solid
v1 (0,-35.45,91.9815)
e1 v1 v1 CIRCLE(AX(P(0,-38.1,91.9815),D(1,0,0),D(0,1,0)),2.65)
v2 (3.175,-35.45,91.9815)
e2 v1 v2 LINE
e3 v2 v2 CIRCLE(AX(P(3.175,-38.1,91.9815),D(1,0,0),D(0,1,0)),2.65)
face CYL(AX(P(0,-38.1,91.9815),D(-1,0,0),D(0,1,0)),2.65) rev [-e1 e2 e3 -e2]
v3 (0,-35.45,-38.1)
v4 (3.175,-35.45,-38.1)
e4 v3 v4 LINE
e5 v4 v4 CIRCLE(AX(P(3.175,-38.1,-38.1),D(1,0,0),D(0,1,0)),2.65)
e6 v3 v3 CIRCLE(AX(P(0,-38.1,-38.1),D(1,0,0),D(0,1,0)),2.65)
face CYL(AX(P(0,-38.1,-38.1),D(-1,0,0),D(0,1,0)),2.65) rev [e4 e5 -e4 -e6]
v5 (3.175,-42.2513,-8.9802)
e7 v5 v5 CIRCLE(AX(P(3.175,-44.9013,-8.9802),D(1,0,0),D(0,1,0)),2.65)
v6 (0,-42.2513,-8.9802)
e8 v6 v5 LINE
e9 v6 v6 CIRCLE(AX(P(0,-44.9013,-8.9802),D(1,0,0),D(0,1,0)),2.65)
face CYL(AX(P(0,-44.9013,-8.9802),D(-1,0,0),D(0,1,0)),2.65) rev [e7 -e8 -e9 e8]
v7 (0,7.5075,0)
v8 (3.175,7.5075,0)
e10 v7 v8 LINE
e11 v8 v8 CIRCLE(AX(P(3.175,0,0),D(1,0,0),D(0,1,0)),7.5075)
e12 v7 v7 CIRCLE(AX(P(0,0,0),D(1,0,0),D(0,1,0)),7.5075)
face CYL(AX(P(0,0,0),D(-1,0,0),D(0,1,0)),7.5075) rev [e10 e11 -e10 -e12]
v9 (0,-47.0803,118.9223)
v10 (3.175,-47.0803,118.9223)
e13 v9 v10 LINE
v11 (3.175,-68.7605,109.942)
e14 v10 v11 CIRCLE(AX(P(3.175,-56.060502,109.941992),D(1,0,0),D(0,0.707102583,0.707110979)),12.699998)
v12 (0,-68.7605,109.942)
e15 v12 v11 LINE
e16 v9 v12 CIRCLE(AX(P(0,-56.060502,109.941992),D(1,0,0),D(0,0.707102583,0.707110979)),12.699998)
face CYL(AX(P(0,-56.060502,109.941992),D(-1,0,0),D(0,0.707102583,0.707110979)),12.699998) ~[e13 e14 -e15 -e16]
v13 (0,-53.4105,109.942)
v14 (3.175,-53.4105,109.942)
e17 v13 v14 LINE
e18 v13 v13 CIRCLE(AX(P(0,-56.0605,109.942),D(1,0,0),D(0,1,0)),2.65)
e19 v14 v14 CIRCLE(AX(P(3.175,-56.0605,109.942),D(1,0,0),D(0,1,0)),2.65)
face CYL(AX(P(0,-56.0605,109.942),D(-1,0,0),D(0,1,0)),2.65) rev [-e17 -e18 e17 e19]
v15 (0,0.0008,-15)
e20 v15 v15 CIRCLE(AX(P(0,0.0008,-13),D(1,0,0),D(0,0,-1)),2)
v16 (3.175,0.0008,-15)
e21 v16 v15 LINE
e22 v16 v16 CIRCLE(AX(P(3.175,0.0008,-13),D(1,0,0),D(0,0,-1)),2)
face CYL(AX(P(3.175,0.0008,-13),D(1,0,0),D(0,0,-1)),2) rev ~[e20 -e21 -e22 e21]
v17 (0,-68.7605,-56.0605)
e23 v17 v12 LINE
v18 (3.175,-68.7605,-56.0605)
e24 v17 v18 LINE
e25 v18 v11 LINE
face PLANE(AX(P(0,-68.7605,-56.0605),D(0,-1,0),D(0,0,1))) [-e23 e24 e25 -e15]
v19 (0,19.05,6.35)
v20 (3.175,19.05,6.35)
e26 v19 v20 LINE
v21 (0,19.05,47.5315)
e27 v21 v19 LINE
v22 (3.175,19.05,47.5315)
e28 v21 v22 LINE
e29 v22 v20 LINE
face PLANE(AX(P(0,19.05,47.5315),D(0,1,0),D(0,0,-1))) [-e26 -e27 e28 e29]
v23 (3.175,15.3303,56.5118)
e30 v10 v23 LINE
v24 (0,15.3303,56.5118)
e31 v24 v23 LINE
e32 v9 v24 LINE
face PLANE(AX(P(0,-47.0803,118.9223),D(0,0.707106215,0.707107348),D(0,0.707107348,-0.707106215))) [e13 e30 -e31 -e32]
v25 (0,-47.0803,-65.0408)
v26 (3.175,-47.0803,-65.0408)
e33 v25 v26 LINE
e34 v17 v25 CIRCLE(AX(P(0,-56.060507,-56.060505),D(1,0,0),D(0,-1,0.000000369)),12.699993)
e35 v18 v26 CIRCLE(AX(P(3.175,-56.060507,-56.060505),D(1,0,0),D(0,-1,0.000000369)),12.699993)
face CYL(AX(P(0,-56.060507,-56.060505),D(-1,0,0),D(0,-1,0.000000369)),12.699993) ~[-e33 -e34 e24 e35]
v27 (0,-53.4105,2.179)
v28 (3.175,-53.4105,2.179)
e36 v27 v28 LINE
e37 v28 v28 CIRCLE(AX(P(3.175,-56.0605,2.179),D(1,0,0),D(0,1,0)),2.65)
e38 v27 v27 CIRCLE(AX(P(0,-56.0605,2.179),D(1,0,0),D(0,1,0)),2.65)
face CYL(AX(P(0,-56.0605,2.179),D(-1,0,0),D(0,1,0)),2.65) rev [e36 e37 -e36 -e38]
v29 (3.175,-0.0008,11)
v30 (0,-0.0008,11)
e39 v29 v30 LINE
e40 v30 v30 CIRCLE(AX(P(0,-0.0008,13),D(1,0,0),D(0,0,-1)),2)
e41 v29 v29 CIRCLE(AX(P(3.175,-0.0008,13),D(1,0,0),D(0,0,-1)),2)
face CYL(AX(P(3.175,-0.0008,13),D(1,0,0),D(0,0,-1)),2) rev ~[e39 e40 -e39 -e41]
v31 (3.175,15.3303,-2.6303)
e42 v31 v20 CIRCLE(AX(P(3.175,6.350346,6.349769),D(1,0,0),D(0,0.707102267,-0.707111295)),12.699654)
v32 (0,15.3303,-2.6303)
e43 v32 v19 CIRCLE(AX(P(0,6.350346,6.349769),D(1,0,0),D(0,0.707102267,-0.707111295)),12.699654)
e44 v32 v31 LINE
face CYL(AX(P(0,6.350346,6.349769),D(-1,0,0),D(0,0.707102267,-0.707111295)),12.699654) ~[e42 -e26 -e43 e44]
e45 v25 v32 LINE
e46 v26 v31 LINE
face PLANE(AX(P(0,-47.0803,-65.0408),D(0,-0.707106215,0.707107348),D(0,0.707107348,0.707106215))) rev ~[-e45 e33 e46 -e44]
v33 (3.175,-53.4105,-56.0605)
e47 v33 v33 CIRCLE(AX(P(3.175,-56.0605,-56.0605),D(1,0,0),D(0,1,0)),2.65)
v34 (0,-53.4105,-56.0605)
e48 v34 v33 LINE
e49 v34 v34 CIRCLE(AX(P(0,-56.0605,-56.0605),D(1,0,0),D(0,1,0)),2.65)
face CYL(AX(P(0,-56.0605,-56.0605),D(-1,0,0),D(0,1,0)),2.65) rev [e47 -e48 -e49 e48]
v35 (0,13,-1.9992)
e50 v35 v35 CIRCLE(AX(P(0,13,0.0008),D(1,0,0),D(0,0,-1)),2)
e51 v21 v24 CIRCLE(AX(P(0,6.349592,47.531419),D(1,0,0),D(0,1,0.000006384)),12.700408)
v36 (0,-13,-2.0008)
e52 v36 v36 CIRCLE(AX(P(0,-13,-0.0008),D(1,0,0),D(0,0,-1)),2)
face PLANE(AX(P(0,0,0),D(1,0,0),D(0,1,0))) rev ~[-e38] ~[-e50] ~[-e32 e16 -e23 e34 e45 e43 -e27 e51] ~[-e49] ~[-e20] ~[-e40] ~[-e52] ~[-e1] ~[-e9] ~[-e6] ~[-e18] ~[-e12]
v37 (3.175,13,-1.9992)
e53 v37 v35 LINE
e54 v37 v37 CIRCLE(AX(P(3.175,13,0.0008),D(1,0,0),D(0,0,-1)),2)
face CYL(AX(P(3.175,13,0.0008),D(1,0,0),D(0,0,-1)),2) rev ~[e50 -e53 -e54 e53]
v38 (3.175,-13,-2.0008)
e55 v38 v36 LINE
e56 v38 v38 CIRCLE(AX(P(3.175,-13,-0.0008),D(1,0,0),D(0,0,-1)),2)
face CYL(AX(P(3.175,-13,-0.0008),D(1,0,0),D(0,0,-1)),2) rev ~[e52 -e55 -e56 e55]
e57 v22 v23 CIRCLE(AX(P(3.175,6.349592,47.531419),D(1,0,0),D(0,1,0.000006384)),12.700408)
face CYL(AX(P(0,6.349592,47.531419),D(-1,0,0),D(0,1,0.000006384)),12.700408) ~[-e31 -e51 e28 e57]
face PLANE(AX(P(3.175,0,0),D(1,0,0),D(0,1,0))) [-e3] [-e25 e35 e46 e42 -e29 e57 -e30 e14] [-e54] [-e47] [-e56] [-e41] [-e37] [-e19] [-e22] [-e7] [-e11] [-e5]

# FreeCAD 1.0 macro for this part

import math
import FreeCAD as App
import Part
import Sketcher
from FreeCAD import Vector
Q = App.Units.Quantity

doc = App.newDocument("Part")
params = doc.addObject("Spreadsheet::Sheet", "Params")
for row, (alias, value) in enumerate([
    ("sketch1_radius", "0.5 in"),
    ("pad1_length", "0.125 in"),
    ("pocket1_length", "1 in"),
], start=1):
    params.set(f"A{row}", alias)
    params.set(f"B{row}", "=" + value)
    params.setAlias(f"B{row}", alias)

body = doc.addObject("PartDesign::Body", "Body")

# Sketch on YZ plane
sketch1 = doc.addObject("Sketcher::SketchObject", "Sketch")
body.addObject(sketch1)
sketch1.AttachmentSupport = (doc.YZ_Plane, [""])
sketch1.MapMode = "FlatFace"
sketch1.addGeometry(Part.LineSegment(Vector(15.3303, 56.5118, 0), Vector(-47.0803, 118.9223, 0)), False)
sketch1.addGeometry(Part.ArcOfCircle(Part.Circle(Vector(-56.0605, 109.942, 0), Vector(0, 0, 1), 12.699991), math.radians(45.000319), math.radians(180)), False)
sketch1.addGeometry(Part.LineSegment(Vector(-68.7605, 109.942, 0), Vector(-68.7605, -56.0605, 0)), False)
sketch1.addGeometry(Part.ArcOfCircle(Part.Circle(Vector(-56.0605, -56.0605, 0), Vector(0, 0, 1), 12.7), math.radians(180), math.radians(314.999681)), False)
sketch1.addGeometry(Part.LineSegment(Vector(-47.0803, -65.0408, 0), Vector(15.3303, -2.6303, 0)), False)
sketch1.addGeometry(Part.ArcOfCircle(Part.Circle(Vector(6.35, 6.35, 0), Vector(0, 0, 1), 12.700062), math.radians(-45), math.radians(0)), False)
sketch1.addGeometry(Part.LineSegment(Vector(19.05, 6.35, 0), Vector(19.05, 47.5315, 0)), False)
sketch1.addGeometry(Part.ArcOfCircle(Part.Circle(Vector(6.35, 47.5315, 0), Vector(0, 0, 1), 12.7), math.radians(0), math.radians(45)), False)
sketch1.addGeometry(Part.Circle(Vector(-56.0605, -56.0605, 0), Vector(0, 0, 1), 2.65), False)
sketch1.addGeometry(Part.Circle(Vector(-38.1, -38.1, 0), Vector(0, 0, 1), 2.65), False)
sketch1.addGeometry(Part.Circle(Vector(0, 0, 0), Vector(0, 0, 1), 7.5075), False)
sketch1.addGeometry(Part.Circle(Vector(-38.1, 91.9815, 0), Vector(0, 0, 1), 2.65), False)
sketch1.addGeometry(Part.Circle(Vector(-56.0605, 109.942, 0), Vector(0, 0, 1), 2.65), False)
sketch1.addGeometry(Part.Circle(Vector(-44.9013, -8.9802, 0), Vector(0, 0, 1), 2.65), False)
sketch1.addGeometry(Part.Circle(Vector(-56.0605, 2.179, 0), Vector(0, 0, 1), 2.65), False)
sketch1.addConstraint(Sketcher.Constraint("Tangent", 0, 2, 1, 1))
sketch1.addConstraint(Sketcher.Constraint("Tangent", 1, 2, 2, 1))
sketch1.addConstraint(Sketcher.Constraint("Tangent", 2, 2, 3, 1))
sketch1.addConstraint(Sketcher.Constraint("Tangent", 3, 2, 4, 1))
sketch1.addConstraint(Sketcher.Constraint("Tangent", 4, 2, 5, 1))
sketch1.addConstraint(Sketcher.Constraint("Tangent", 5, 2, 6, 1))
sketch1.addConstraint(Sketcher.Constraint("Tangent", 6, 2, 7, 1))
sketch1.addConstraint(Sketcher.Constraint("Tangent", 7, 2, 0, 1))
sketch1.addConstraint(Sketcher.Constraint("Vertical", 2))
sketch1.addConstraint(Sketcher.Constraint("Vertical", 6))
sketch1.addConstraint(Sketcher.Constraint("Coincident", 10, 3, -1, 1))
sketch1.addConstraint(Sketcher.Constraint("Coincident", 8, 3, 3, 3))
sketch1.addConstraint(Sketcher.Constraint("Coincident", 12, 3, 1, 3))
sketch1.addConstraint(Sketcher.Constraint("Equal", 1, 3))
sketch1.addConstraint(Sketcher.Constraint("Equal", 3, 5))
sketch1.addConstraint(Sketcher.Constraint("Equal", 5, 7))
sketch1.addConstraint(Sketcher.Constraint("Equal", 8, 9))
sketch1.addConstraint(Sketcher.Constraint("Equal", 9, 11))
sketch1.addConstraint(Sketcher.Constraint("Equal", 11, 12))
sketch1.addConstraint(Sketcher.Constraint("Equal", 12, 13))
sketch1.addConstraint(Sketcher.Constraint("Equal", 13, 14))
sketch1.addConstraint(Sketcher.Constraint("Perpendicular", 0, 4))
sketch1.addConstraint(Sketcher.Constraint("Vertical", 9, 3, 11, 3))
sketch1.addConstraint(Sketcher.Constraint("Vertical", 12, 3, 14, 3))
sketch1.addConstraint(Sketcher.Constraint("Vertical", 0, 2, 3, 2))
sketch1.addConstraint(Sketcher.Constraint("Radius", 1, Q("0.5 in")))
sketch1.addConstraint(Sketcher.Constraint("DistanceX", 9, 3, -1, 1, Q("1.5 in")))
sketch1.addConstraint(Sketcher.Constraint("DistanceY", 9, 3, -1, 1, Q("1.5 in")))
sketch1.addConstraint(Sketcher.Constraint("Diameter", 8, 5.3))
sketch1.addConstraint(Sketcher.Constraint("Diameter", 10, 15.015))
sketch1.addConstraint(Sketcher.Constraint("DistanceX", -1, 1, 5, 2, Q("0.75 in")))
sketch1.addConstraint(Sketcher.Constraint("DistanceY", -1, 1, 5, 3, Q("0.25 in")))
sketch1.addConstraint(Sketcher.Constraint("DistanceY", 7, 3, 11, 3, Q("1.75 in")))
sketch1.addConstraint(Sketcher.Constraint("DistanceY", 13, 3, 4, 2, Q("0.25 in")))
sketch1.addConstraint(Sketcher.Constraint("DistanceY", 2, 2, 2, 1, 166.0025))
sketch1.addConstraint(Sketcher.Constraint("DistanceY", 6, 1, 6, 2, 41.1815))
sketch1.addConstraint(Sketcher.Constraint("DistanceY", 3, 3, 14, 3, Q("2.2929 in")))
sketch1.addConstraint(Sketcher.Constraint("DistanceX", 13, 3, -1, 1, 44.9013))
sketch1.setExpression("Constraints[25]", "Params.sketch1_radius")
pad1 = doc.addObject("PartDesign::Pad", "Pad")
body.addObject(pad1)
pad1.Profile = sketch1
pad1.setExpression("Length", "Params.pad1_length")

# Sketch on YZ plane
sketch2 = doc.addObject("Sketcher::SketchObject", "Sketch001")
body.addObject(sketch2)
sketch2.AttachmentSupport = (doc.YZ_Plane, [""])
sketch2.MapMode = "FlatFace"
sketch2.AttachmentOffset = App.Placement(Vector(0, 0, 0.125 * 25.4), App.Rotation())
sketch2.addGeometry(Part.Circle(Vector(13, 0.0008, 0), Vector(0, 0, 1), 2), False)
sketch2.addGeometry(Part.Circle(Vector(-0.0008, 13, 0), Vector(0, 0, 1), 2), False)
sketch2.addGeometry(Part.Circle(Vector(-13, -0.0008, 0), Vector(0, 0, 1), 2), False)
sketch2.addGeometry(Part.Circle(Vector(0.0008, -13, 0), Vector(0, 0, 1), 2), False)
sketch2.addConstraint(Sketcher.Constraint("Equal", 0, 1))
sketch2.addConstraint(Sketcher.Constraint("Equal", 1, 2))
sketch2.addConstraint(Sketcher.Constraint("Equal", 2, 3))
sketch2.addConstraint(Sketcher.Constraint("Symmetric", 0, 3, 2, 3, -1, 1))
sketch2.addConstraint(Sketcher.Constraint("Symmetric", 1, 3, 3, 3, -1, 1))
sketch2.addConstraint(Sketcher.Constraint("Diameter", 0, 4.0))
sketch2.addConstraint(Sketcher.Constraint("DistanceX", 2, 3, 0, 3, 26.0))
sketch2.addConstraint(Sketcher.Constraint("DistanceY", 3, 3, 1, 3, 26.0))
sketch2.addConstraint(Sketcher.Constraint("DistanceY", -1, 1, 0, 3, 0.0008))
sketch2.addConstraint(Sketcher.Constraint("DistanceX", 1, 3, -1, 1, 0.0008))
pocket1 = doc.addObject("PartDesign::Pocket", "Pocket")
body.addObject(pocket1)
pocket1.Profile = sketch2
pocket1.setExpression("Length", "Params.pocket1_length")

doc.recompute()
